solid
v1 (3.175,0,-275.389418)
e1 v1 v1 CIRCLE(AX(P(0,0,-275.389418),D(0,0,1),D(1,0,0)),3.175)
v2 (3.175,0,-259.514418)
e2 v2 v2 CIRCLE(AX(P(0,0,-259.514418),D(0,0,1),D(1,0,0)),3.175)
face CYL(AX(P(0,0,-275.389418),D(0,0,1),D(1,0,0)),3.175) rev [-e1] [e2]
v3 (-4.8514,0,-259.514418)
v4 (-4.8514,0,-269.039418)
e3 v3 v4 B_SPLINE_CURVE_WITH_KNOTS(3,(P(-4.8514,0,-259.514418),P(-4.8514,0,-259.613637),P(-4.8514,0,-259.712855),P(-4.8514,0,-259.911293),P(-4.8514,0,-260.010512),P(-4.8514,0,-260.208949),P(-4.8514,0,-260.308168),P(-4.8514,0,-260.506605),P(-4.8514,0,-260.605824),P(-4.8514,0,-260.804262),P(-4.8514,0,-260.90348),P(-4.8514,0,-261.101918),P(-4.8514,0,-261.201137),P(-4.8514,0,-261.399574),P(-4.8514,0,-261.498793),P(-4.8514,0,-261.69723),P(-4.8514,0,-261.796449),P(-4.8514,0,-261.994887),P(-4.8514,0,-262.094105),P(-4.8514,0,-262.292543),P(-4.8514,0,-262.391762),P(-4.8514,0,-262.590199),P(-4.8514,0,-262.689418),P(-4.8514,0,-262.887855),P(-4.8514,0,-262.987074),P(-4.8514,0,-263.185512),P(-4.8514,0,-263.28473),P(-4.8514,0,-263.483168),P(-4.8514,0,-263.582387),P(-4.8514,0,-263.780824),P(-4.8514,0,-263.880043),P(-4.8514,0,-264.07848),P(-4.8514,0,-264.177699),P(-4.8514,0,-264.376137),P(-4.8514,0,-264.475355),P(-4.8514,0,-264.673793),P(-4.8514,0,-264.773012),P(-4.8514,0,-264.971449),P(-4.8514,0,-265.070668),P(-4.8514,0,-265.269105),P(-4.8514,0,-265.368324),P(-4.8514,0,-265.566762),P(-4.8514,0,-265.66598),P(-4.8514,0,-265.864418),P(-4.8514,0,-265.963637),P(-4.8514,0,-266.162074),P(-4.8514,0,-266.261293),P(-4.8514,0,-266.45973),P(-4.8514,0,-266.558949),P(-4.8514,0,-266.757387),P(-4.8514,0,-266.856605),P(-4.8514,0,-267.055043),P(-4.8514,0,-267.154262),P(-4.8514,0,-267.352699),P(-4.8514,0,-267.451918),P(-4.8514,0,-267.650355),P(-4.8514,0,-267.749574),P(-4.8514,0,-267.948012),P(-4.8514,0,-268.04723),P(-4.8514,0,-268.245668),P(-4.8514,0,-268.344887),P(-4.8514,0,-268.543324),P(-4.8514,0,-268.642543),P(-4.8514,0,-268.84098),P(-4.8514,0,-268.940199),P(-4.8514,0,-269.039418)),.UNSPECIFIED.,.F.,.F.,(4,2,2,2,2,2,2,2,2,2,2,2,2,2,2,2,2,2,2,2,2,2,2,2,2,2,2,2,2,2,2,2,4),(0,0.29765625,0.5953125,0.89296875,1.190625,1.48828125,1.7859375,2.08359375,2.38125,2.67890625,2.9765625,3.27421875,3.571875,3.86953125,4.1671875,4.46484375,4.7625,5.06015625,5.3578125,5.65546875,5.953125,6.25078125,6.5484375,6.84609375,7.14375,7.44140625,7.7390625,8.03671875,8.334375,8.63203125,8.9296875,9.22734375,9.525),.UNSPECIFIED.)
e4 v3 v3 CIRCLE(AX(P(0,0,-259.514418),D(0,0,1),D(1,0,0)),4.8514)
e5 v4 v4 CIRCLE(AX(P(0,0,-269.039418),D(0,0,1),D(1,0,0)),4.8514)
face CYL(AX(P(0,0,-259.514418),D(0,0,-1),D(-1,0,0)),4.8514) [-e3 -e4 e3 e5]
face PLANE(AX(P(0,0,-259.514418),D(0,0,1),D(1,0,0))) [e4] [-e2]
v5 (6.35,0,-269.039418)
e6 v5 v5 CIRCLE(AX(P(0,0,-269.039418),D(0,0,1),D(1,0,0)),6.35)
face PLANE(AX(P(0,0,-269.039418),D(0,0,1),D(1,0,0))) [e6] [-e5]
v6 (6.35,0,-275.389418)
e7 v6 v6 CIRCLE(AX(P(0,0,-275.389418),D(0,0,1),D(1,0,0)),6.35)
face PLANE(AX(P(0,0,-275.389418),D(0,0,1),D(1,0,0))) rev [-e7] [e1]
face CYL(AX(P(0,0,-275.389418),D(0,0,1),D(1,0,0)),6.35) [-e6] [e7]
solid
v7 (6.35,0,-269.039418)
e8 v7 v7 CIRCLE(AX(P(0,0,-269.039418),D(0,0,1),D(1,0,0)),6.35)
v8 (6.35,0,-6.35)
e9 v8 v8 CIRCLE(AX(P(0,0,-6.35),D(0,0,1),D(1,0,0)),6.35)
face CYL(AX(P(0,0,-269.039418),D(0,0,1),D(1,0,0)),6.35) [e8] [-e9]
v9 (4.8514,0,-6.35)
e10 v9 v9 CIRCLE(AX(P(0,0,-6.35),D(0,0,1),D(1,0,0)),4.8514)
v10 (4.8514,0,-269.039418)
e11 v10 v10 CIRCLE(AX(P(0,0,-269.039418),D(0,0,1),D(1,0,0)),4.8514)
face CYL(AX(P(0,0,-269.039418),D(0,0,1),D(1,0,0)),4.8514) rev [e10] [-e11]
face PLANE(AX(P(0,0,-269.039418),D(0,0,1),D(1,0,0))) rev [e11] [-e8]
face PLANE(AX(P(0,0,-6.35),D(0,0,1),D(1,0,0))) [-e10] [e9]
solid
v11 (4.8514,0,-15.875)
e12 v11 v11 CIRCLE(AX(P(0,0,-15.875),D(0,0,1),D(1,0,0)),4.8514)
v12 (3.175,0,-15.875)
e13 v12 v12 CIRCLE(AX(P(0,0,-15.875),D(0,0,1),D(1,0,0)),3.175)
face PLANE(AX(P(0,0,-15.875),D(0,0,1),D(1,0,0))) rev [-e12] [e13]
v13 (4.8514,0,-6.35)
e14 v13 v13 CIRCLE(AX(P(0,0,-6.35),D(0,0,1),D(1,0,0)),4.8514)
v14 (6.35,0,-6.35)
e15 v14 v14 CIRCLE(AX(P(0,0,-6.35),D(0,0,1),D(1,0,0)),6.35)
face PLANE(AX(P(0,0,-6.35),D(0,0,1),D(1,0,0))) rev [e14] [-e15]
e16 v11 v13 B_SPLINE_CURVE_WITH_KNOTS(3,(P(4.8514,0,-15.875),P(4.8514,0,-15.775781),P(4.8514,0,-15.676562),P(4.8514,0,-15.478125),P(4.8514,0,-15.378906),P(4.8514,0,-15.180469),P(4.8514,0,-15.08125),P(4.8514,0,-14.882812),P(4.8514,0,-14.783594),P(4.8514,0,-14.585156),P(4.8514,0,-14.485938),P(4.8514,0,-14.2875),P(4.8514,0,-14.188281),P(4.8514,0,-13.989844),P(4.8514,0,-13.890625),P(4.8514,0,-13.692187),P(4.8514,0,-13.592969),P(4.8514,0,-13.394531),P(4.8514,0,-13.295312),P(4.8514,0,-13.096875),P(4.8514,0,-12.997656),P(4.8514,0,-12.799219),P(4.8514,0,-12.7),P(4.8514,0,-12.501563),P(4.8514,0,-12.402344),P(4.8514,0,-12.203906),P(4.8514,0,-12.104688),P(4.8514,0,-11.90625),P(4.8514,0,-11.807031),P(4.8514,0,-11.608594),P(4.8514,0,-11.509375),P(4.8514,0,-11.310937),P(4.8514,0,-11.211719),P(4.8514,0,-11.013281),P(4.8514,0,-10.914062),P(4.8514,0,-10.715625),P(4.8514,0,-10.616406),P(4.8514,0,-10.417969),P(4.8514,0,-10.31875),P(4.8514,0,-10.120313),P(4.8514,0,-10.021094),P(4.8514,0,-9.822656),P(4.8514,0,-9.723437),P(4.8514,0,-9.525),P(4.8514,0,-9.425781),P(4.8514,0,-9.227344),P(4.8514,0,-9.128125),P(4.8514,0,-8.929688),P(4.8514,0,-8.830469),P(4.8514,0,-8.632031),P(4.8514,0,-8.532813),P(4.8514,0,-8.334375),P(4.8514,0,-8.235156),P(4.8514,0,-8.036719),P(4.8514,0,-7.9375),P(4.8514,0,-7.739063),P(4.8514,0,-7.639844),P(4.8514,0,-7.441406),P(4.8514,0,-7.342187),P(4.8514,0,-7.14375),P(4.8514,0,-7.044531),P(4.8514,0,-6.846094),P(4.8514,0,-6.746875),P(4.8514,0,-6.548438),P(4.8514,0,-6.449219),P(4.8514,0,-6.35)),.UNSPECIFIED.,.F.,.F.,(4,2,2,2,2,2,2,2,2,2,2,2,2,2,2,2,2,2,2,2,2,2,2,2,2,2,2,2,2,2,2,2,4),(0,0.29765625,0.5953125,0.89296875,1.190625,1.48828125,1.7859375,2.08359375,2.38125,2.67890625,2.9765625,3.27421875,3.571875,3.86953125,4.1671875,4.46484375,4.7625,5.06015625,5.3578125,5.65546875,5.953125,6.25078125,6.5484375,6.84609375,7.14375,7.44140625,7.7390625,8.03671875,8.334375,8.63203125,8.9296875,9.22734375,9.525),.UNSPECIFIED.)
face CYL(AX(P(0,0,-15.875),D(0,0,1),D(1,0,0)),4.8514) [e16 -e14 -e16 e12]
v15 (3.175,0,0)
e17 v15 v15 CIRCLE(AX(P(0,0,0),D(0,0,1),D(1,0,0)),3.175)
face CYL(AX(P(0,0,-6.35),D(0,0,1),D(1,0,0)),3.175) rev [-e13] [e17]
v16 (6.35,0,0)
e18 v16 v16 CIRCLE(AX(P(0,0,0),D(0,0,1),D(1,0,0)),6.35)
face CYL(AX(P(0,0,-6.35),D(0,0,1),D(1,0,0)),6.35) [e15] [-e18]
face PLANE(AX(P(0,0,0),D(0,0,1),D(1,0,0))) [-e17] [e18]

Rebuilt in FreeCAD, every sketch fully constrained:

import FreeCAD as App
import Part
import Sketcher
from FreeCAD import Vector
Q = App.Units.Quantity

doc = App.newDocument("Part")
body = doc.addObject("PartDesign::Body", "Body")

sketch1 = doc.addObject("Sketcher::SketchObject", "Sketch")
body.addObject(sketch1)
sketch1.AttachmentSupport = (doc.XY_Plane, [""])
sketch1.MapMode = "FlatFace"
sketch1.addGeometry(Part.Circle(Vector(0, 0, 0), Vector(0, 0, 1), 6.35), False)
sketch1.addGeometry(Part.Circle(Vector(0, 0, 0), Vector(0, 0, 1), 3.175), False)
sketch1.addConstraint(Sketcher.Constraint("Coincident", 0, 3, -1, 1))
sketch1.addConstraint(Sketcher.Constraint("Coincident", 1, 3, -1, 1))
sketch1.addConstraint(Sketcher.Constraint("Diameter", 0, Q("0.5 in")))
sketch1.addConstraint(Sketcher.Constraint("Diameter", 1, Q("0.25 in")))
pad1 = doc.addObject("PartDesign::Pad", "Pad")
body.addObject(pad1)
pad1.Profile = sketch1
pad1.Length = Q("0.25 in")
pad1.Reversed = True

sketch2 = doc.addObject("Sketcher::SketchObject", "Sketch001")
body.addObject(sketch2)
sketch2.AttachmentSupport = (doc.XY_Plane, [""])
sketch2.MapMode = "FlatFace"
sketch2.AttachmentOffset = App.Placement(Vector(0, 0, -0.25 * 25.4), App.Rotation())
sketch2.addGeometry(Part.Circle(Vector(0, 0, 0), Vector(0, 0, 1), 4.8514), False)
sketch2.addGeometry(Part.Circle(Vector(0, 0, 0), Vector(0, 0, 1), 3.175), False)
sketch2.addConstraint(Sketcher.Constraint("Coincident", 0, 3, -1, 1))
sketch2.addConstraint(Sketcher.Constraint("Coincident", 1, 3, -1, 1))
sketch2.addConstraint(Sketcher.Constraint("Diameter", 1, Q("0.25 in")))
sketch2.addConstraint(Sketcher.Constraint("Diameter", 0, Q("0.382 in")))
pad2 = doc.addObject("PartDesign::Pad", "Pad001")
body.addObject(pad2)
pad2.Profile = sketch2
pad2.Length = Q("0.375 in")
pad2.Reversed = True
body2 = doc.addObject("PartDesign::Body", "Body001")

sketch3 = doc.addObject("Sketcher::SketchObject", "Sketch002")
body2.addObject(sketch3)
sketch3.AttachmentSupport = (doc.getObject("XY_Plane001"), [""])
sketch3.MapMode = "FlatFace"
sketch3.AttachmentOffset = App.Placement(Vector(0, 0, -0.25 * 25.4), App.Rotation())
sketch3.addGeometry(Part.Circle(Vector(0, 0, 0), Vector(0, 0, 1), 6.35), False)
sketch3.addGeometry(Part.Circle(Vector(0, 0, 0), Vector(0, 0, 1), 4.8514), False)
sketch3.addConstraint(Sketcher.Constraint("Coincident", 0, 3, -1, 1))
sketch3.addConstraint(Sketcher.Constraint("Coincident", 1, 3, -1, 1))
sketch3.addConstraint(Sketcher.Constraint("Diameter", 0, Q("0.5 in")))
sketch3.addConstraint(Sketcher.Constraint("Diameter", 1, Q("0.382 in")))
pad3 = doc.addObject("PartDesign::Pad", "Pad002")
body2.addObject(pad3)
pad3.Profile = sketch3
pad3.Length = 262.689418
pad3.Reversed = True
body3 = doc.addObject("PartDesign::Body", "Body002")

sketch4 = doc.addObject("Sketcher::SketchObject", "Sketch003")
body3.addObject(sketch4)
sketch4.AttachmentSupport = (doc.getObject("XY_Plane002"), [""])
sketch4.MapMode = "FlatFace"
sketch4.AttachmentOffset = App.Placement(Vector(0, 0, -269.039418), App.Rotation())
sketch4.addGeometry(Part.Circle(Vector(0, 0, 0), Vector(0, 0, 1), 4.8514), False)
sketch4.addGeometry(Part.Circle(Vector(0, 0, 0), Vector(0, 0, 1), 3.175), False)
sketch4.addConstraint(Sketcher.Constraint("Coincident", 0, 3, -1, 1))
sketch4.addConstraint(Sketcher.Constraint("Coincident", 1, 3, -1, 1))
sketch4.addConstraint(Sketcher.Constraint("Diameter", 1, Q("0.25 in")))
sketch4.addConstraint(Sketcher.Constraint("Diameter", 0, Q("0.382 in")))
pad4 = doc.addObject("PartDesign::Pad", "Pad003")
body3.addObject(pad4)
pad4.Profile = sketch4
pad4.Length = Q("0.375 in")
body4 = doc.addObject("PartDesign::Body", "Body003")

sketch5 = doc.addObject("Sketcher::SketchObject", "Sketch004")
body4.addObject(sketch5)
sketch5.AttachmentSupport = (doc.getObject("XY_Plane003"), [""])
sketch5.MapMode = "FlatFace"
sketch5.AttachmentOffset = App.Placement(Vector(0, 0, -269.039418), App.Rotation())
sketch5.addGeometry(Part.Circle(Vector(0, 0, 0), Vector(0, 0, 1), 6.35), False)
sketch5.addGeometry(Part.Circle(Vector(0, 0, 0), Vector(0, 0, 1), 3.175), False)
sketch5.addConstraint(Sketcher.Constraint("Coincident", 0, 3, -1, 1))
sketch5.addConstraint(Sketcher.Constraint("Coincident", 1, 3, -1, 1))
sketch5.addConstraint(Sketcher.Constraint("Diameter", 0, Q("0.5 in")))
sketch5.addConstraint(Sketcher.Constraint("Diameter", 1, Q("0.25 in")))
pad5 = doc.addObject("PartDesign::Pad", "Pad004")
body4.addObject(pad5)
pad5.Profile = sketch5
pad5.Length = Q("0.25 in")
pad5.Reversed = True
doc.recompute()

boolean = doc.addObject("PartDesign::Boolean", "Boolean")
body4.addObject(boolean)
boolean.Type = "Fuse"
boolean.addObjects([body3])

doc.recompute()
